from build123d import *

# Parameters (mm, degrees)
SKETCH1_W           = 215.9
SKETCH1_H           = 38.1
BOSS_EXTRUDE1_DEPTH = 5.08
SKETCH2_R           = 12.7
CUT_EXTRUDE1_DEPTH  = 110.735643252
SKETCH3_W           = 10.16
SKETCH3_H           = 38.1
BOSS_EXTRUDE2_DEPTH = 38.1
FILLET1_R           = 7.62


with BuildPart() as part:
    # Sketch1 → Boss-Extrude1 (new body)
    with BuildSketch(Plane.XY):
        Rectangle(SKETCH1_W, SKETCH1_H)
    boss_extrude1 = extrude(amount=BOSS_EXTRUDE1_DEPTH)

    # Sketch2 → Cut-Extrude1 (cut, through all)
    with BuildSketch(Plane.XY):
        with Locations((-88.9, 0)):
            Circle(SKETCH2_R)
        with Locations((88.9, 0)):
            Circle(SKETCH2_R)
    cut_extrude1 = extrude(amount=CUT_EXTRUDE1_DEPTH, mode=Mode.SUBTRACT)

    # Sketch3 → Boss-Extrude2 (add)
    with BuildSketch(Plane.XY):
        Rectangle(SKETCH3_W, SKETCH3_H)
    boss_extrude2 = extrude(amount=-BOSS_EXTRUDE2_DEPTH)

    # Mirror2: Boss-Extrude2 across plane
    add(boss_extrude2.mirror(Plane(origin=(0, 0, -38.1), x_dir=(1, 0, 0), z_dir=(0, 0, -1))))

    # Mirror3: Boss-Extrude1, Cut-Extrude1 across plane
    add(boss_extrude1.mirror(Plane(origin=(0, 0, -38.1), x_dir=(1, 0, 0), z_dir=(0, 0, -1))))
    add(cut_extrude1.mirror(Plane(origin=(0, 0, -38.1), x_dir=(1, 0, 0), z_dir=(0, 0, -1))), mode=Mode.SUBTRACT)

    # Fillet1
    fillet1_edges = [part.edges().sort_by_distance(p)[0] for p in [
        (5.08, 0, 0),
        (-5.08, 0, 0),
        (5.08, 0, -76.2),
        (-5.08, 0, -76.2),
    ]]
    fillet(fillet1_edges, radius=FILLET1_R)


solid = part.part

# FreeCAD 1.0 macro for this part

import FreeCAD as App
import Part
import Sketcher
from FreeCAD import Vector
Q = App.Units.Quantity


def edges_at(feature, points):
    """Names of the edges that pass closest to the given points."""
    edges = feature.Shape.Edges
    near = lambda p: min(range(len(edges)), key=lambda i: edges[i].distToShape(Part.Vertex(*p))[0])
    return sorted({f"Edge{near(p) + 1}" for p in points})


def add_polygon(sketch, points):
    """Adds a closed chain of lines whose ends are joined by coincident constraints."""
    first, n = sketch.GeometryCount, len(points)
    for a, b in zip(points, points[1:] + points[:1]):
        sketch.addGeometry(Part.LineSegment(App.Vector(*a, 0), App.Vector(*b, 0)), False)
    for i in range(n):
        sketch.addConstraint(Sketcher.Constraint("Coincident", first + i, 2, first + (i + 1) % n, 1))

doc = App.newDocument("Part")
body = doc.addObject("PartDesign::Body", "Body")

sketch1 = doc.addObject("Sketcher::SketchObject", "Sketch")
body.addObject(sketch1)
sketch1.AttachmentSupport = (doc.XY_Plane, [""])
sketch1.MapMode = "FlatFace"
add_polygon(sketch1, [(-107.95, 19.05), (-107.95, -19.05), (107.95, -19.05), (107.95, 19.05)])
sketch1.addConstraint([
    Sketcher.Constraint("Vertical", 0),
    Sketcher.Constraint("Horizontal", 1),
    Sketcher.Constraint("Vertical", 2),
    Sketcher.Constraint("Horizontal", 3),
    Sketcher.Constraint("Symmetric", 0, 2, 2, 2, -1, 1),
    Sketcher.Constraint("DistanceX", 1, 1, 1, 2, Q("8.5 in")),
    Sketcher.Constraint("DistanceY", 0, 2, 0, 1, Q("1.5 in")),
])
pad1 = doc.addObject("PartDesign::Pad", "Pad")
body.addObject(pad1)
pad1.Profile = sketch1
pad1.Length = Q("0.2 in")

sketch2 = doc.addObject("Sketcher::SketchObject", "Sketch001")
body.addObject(sketch2)
sketch2.AttachmentSupport = (doc.XY_Plane, [""])
sketch2.MapMode = "FlatFace"
sketch2.addGeometry([
    Part.Circle(Vector(-88.9, 0, 0), Vector(0, 0, 1), 12.7),
    Part.Circle(Vector(88.9, 0, 0), Vector(0, 0, 1), 12.7),
], False)
sketch2.addConstraint([
    Sketcher.Constraint("Equal", 0, 1),
    Sketcher.Constraint("Symmetric", 0, 3, 1, 3, -1, 1),
    Sketcher.Constraint("PointOnObject", 0, 3, -1),
    Sketcher.Constraint("Diameter", 0, Q("1 in")),
    Sketcher.Constraint("DistanceX", 0, 3, 1, 3, Q("7 in")),
])
pocket1 = doc.addObject("PartDesign::Pocket", "Pocket")
body.addObject(pocket1)
pocket1.Profile = sketch2
pocket1.Type = "ThroughAll"
pocket1.Reversed = True

sketch3 = doc.addObject("Sketcher::SketchObject", "Sketch002")
body.addObject(sketch3)
sketch3.AttachmentSupport = (doc.XY_Plane, [""])
sketch3.MapMode = "FlatFace"
add_polygon(sketch3, [(-5.08, 19.05), (-5.08, -19.05), (5.08, -19.05), (5.08, 19.05)])
sketch3.addConstraint([
    Sketcher.Constraint("Vertical", 0),
    Sketcher.Constraint("Horizontal", 1),
    Sketcher.Constraint("Vertical", 2),
    Sketcher.Constraint("Horizontal", 3),
    Sketcher.Constraint("Symmetric", 0, 2, 2, 2, -1, 1),
    Sketcher.Constraint("DistanceX", 1, 1, 1, 2, Q("0.4 in")),
    Sketcher.Constraint("DistanceY", 0, 2, 0, 1, Q("1.5 in")),
])
pad2 = doc.addObject("PartDesign::Pad", "Pad001")
body.addObject(pad2)
pad2.Profile = sketch3
pad2.Length = Q("1.5 in")
pad2.Reversed = True
doc.recompute()

datumplane = doc.addObject("PartDesign::Plane", "DatumPlane")
body.addObject(datumplane)
datumplane.AttachmentSupport = (doc.XY_Plane, [""])
datumplane.MapMode = "FlatFace"
datumplane.AttachmentOffset = App.Placement(Vector(0, 0, -1.5 * 25.4), App.Rotation())
mirrored = doc.addObject("PartDesign::Mirrored", "Mirrored")
body.addObject(mirrored)
mirrored.Originals = [pad2]
mirrored.MirrorPlane = (datumplane, [""])
body.Tip = mirrored
doc.recompute()

datumplane2 = doc.addObject("PartDesign::Plane", "DatumPlane001")
body.addObject(datumplane2)
datumplane2.AttachmentSupport = (doc.XY_Plane, [""])
datumplane2.MapMode = "FlatFace"
datumplane2.AttachmentOffset = App.Placement(Vector(0, 0, -1.5 * 25.4), App.Rotation())
mirrored2 = doc.addObject("PartDesign::Mirrored", "Mirrored001")
body.addObject(mirrored2)
mirrored2.Originals = [pad1, pocket1]
mirrored2.MirrorPlane = (datumplane2, [""])
body.Tip = mirrored2
doc.recompute()

fillet = doc.addObject("PartDesign::Fillet", "Fillet")
body.addObject(fillet)
fillet.Base = (mirrored2, edges_at(mirrored2, [
    (5.08, 0, 0),
    (-5.08, 0, 0),
    (5.08, 0, -76.2),
    (-5.08, 0, -76.2),
]))
fillet.Radius = Q("0.3 in")

doc.recompute()
